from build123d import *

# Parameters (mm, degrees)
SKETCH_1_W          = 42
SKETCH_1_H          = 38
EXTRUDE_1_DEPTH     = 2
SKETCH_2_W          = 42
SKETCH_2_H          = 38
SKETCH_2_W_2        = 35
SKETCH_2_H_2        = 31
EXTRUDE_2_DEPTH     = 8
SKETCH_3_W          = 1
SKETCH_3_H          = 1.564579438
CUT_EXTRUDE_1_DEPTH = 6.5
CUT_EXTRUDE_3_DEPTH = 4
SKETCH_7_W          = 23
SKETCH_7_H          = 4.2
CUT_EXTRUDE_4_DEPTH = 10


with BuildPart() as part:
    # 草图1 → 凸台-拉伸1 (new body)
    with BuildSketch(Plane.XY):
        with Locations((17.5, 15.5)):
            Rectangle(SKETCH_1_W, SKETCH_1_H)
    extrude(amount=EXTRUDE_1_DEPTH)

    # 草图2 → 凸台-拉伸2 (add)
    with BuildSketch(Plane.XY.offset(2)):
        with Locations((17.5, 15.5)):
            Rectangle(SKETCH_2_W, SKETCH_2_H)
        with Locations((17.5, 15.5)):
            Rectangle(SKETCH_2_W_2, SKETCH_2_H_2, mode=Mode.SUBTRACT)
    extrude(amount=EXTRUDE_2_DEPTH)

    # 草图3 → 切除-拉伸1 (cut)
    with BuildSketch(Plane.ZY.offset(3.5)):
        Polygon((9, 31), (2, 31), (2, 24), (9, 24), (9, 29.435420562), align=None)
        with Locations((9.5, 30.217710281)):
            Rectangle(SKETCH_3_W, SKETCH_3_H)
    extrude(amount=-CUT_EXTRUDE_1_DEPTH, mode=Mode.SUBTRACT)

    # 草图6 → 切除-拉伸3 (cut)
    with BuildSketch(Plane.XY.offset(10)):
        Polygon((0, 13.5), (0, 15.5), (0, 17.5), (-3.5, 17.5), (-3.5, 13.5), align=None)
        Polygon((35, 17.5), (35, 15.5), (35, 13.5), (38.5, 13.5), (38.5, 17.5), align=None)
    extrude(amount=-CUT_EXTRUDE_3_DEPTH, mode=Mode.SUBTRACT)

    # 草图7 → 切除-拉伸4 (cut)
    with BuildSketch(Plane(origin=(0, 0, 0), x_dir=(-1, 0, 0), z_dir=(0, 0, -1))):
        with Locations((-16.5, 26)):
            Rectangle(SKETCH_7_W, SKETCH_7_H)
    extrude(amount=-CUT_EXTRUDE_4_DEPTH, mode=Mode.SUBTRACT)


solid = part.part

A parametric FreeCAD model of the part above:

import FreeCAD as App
import Part
import Sketcher

V = App.Vector

doc = App.newDocument("Part")
body = doc.addObject("PartDesign::Body", "Body")

# Sketch on XY plane
sketch1 = body.newObject("Sketcher::SketchObject", "Sketch")
sketch1.AttachmentSupport = (doc.getObject("XY_Plane"), [""])
sketch1.MapMode = "FlatFace"
sketch1.addGeometry([
    Part.LineSegment(V(-3.5, 34.5, 0), V(-3.5, -3.5, 0)),
    Part.LineSegment(V(-3.5, -3.5, 0), V(38.5, -3.5, 0)),
    Part.LineSegment(V(38.5, -3.5, 0), V(38.5, 34.5, 0)),
    Part.LineSegment(V(38.5, 34.5, 0), V(-3.5, 34.5, 0)),
], False)
sketch1.addConstraint([
    Sketcher.Constraint("Coincident", 0, 2, 1, 1),
    Sketcher.Constraint("Coincident", 1, 2, 2, 1),
    Sketcher.Constraint("Coincident", 2, 2, 3, 1),
    Sketcher.Constraint("Coincident", 3, 2, 0, 1),
    Sketcher.Constraint("Vertical", 0),
    Sketcher.Constraint("Horizontal", 1),
    Sketcher.Constraint("Vertical", 2),
    Sketcher.Constraint("Horizontal", 3),
    Sketcher.Constraint("DistanceX", 1, 1, 1, 2, 42.0),
    Sketcher.Constraint("DistanceY", 0, 2, 0, 1, 38.0),
    Sketcher.Constraint("DistanceX", 0, 2, -1, 1, 3.5),
    Sketcher.Constraint("DistanceY", 0, 2, -1, 1, 3.5),
])
pad1 = body.newObject("PartDesign::Pad", "Pad")
pad1.Profile = sketch1
pad1.Length = 2

# Sketch on XY plane
sketch2 = body.newObject("Sketcher::SketchObject", "Sketch001")
sketch2.AttachmentSupport = (doc.getObject("XY_Plane"), [""])
sketch2.MapMode = "FlatFace"
sketch2.AttachmentOffset = App.Placement(V(0, 0, 2), App.Rotation())
sketch2.addGeometry([
    Part.LineSegment(V(-3.5, 34.5, 0), V(-3.5, -3.5, 0)),  # 0
    Part.LineSegment(V(-3.5, -3.5, 0), V(38.5, -3.5, 0)),  # 1
    Part.LineSegment(V(38.5, -3.5, 0), V(38.5, 34.5, 0)),  # 2
    Part.LineSegment(V(38.5, 34.5, 0), V(-3.5, 34.5, 0)),  # 3
    Part.LineSegment(V(35, 0, 0), V(0, 0, 0)),  # 4
    Part.LineSegment(V(0, 0, 0), V(0, 31, 0)),  # 5
    Part.LineSegment(V(0, 31, 0), V(35, 31, 0)),  # 6
    Part.LineSegment(V(35, 31, 0), V(35, 0, 0)),  # 7
], False)
sketch2.addConstraint([
    Sketcher.Constraint("Coincident", 0, 2, 1, 1),
    Sketcher.Constraint("Coincident", 1, 2, 2, 1),
    Sketcher.Constraint("Coincident", 2, 2, 3, 1),
    Sketcher.Constraint("Coincident", 3, 2, 0, 1),
    Sketcher.Constraint("Coincident", 4, 2, 5, 1),
    Sketcher.Constraint("Coincident", 5, 2, 6, 1),
    Sketcher.Constraint("Coincident", 6, 2, 7, 1),
    Sketcher.Constraint("Coincident", 7, 2, 4, 1),
    Sketcher.Constraint("Vertical", 0),
    Sketcher.Constraint("Horizontal", 1),
    Sketcher.Constraint("Vertical", 2),
    Sketcher.Constraint("Horizontal", 3),
    Sketcher.Constraint("Horizontal", 4),
    Sketcher.Constraint("Vertical", 5),
    Sketcher.Constraint("Horizontal", 6),
    Sketcher.Constraint("Vertical", 7),
    Sketcher.Constraint("Coincident", 4, 2, -1, 1),
    Sketcher.Constraint("DistanceX", 1, 1, 1, 2, 42.0),
    Sketcher.Constraint("DistanceX", 4, 2, 4, 1, 35.0),
    Sketcher.Constraint("DistanceY", 0, 2, 0, 1, 38.0),
    Sketcher.Constraint("DistanceY", 5, 1, 5, 2, 31.0),
    Sketcher.Constraint("DistanceX", 0, 2, -1, 1, 3.5),
    Sketcher.Constraint("DistanceY", 0, 2, -1, 1, 3.5),
])
pad2 = body.newObject("PartDesign::Pad", "Pad001")
pad2.Profile = sketch2
pad2.Length = 8

# Sketch on YZ plane
sketch3 = body.newObject("Sketcher::SketchObject", "Sketch002")
sketch3.AttachmentSupport = (doc.getObject("YZ_Plane"), [""])
sketch3.MapMode = "FlatFace"
sketch3.AttachmentOffset = App.Placement(V(0, 0, -3.5), App.Rotation())
sketch3.addGeometry([
    Part.LineSegment(V(31, 2, 0), V(24, 2, 0)),  # 0
    Part.LineSegment(V(24, 2, 0), V(24, 9, 0)),  # 1
    Part.LineSegment(V(24, 9, 0), V(29.435421, 9, 0)),  # 2
    Part.LineSegment(V(29.435421, 9, 0), V(29.435421, 10, 0)),  # 3
    Part.LineSegment(V(29.435421, 10, 0), V(31, 10, 0)),  # 4
    Part.LineSegment(V(31, 10, 0), V(31, 2, 0)),  # 5
], False)
sketch3.addConstraint([
    Sketcher.Constraint("Coincident", 0, 2, 1, 1),
    Sketcher.Constraint("Coincident", 1, 2, 2, 1),
    Sketcher.Constraint("Coincident", 2, 2, 3, 1),
    Sketcher.Constraint("Coincident", 3, 2, 4, 1),
    Sketcher.Constraint("Coincident", 4, 2, 5, 1),
    Sketcher.Constraint("Coincident", 5, 2, 0, 1),
    Sketcher.Constraint("Horizontal", 0),
    Sketcher.Constraint("Vertical", 1),
    Sketcher.Constraint("Horizontal", 2),
    Sketcher.Constraint("Vertical", 3),
    Sketcher.Constraint("Horizontal", 4),
    Sketcher.Constraint("Vertical", 5),
    Sketcher.Constraint("Equal", 0, 1),
    Sketcher.Constraint("DistanceX", 0, 2, 0, 1, 7.0),
    Sketcher.Constraint("DistanceY", 3, 1, 3, 2, 1.0),
    Sketcher.Constraint("DistanceX", -1, 1, 0, 2, 24.0),
    Sketcher.Constraint("DistanceY", -1, 1, 0, 2, 2.0),
    Sketcher.Constraint("DistanceX", 2, 1, 2, 2, 5.435421),
])
pocket1 = body.newObject("PartDesign::Pocket", "Pocket")
pocket1.Profile = sketch3
pocket1.Length = 6.5
pocket1.Reversed = True

# Sketch on XY plane
sketch4 = body.newObject("Sketcher::SketchObject", "Sketch003")
sketch4.AttachmentSupport = (doc.getObject("XY_Plane"), [""])
sketch4.MapMode = "FlatFace"
sketch4.AttachmentOffset = App.Placement(V(0, 0, 10), App.Rotation())
sketch4.addGeometry([
    Part.LineSegment(V(0, 13.5, 0), V(0, 17.5, 0)),  # 0
    Part.LineSegment(V(0, 17.5, 0), V(-3.5, 17.5, 0)),  # 1
    Part.LineSegment(V(-3.5, 17.5, 0), V(-3.5, 13.5, 0)),  # 2
    Part.LineSegment(V(-3.5, 13.5, 0), V(0, 13.5, 0)),  # 3
    Part.LineSegment(V(35, 17.5, 0), V(35, 13.5, 0)),  # 4
    Part.LineSegment(V(35, 13.5, 0), V(38.5, 13.5, 0)),  # 5
    Part.LineSegment(V(38.5, 13.5, 0), V(38.5, 17.5, 0)),  # 6
    Part.LineSegment(V(38.5, 17.5, 0), V(35, 17.5, 0)),  # 7
], False)
sketch4.addConstraint([
    Sketcher.Constraint("Coincident", 0, 2, 1, 1),
    Sketcher.Constraint("Coincident", 1, 2, 2, 1),
    Sketcher.Constraint("Coincident", 2, 2, 3, 1),
    Sketcher.Constraint("Coincident", 3, 2, 0, 1),
    Sketcher.Constraint("Coincident", 4, 2, 5, 1),
    Sketcher.Constraint("Coincident", 5, 2, 6, 1),
    Sketcher.Constraint("Coincident", 6, 2, 7, 1),
    Sketcher.Constraint("Coincident", 7, 2, 4, 1),
    Sketcher.Constraint("Vertical", 0),
    Sketcher.Constraint("Horizontal", 1),
    Sketcher.Constraint("Vertical", 2),
    Sketcher.Constraint("Horizontal", 3),
    Sketcher.Constraint("Vertical", 4),
    Sketcher.Constraint("Horizontal", 5),
    Sketcher.Constraint("Vertical", 6),
    Sketcher.Constraint("Horizontal", 7),
    Sketcher.Constraint("PointOnObject", 0, 2, -2),
    Sketcher.Constraint("Horizontal", 3, 2, 4, 2),
    Sketcher.Constraint("Horizontal", 1, 2, 6, 2),
    Sketcher.Constraint("Equal", 3, 5),
    Sketcher.Constraint("DistanceY", 0, 1, 0, 2, 4.0),
    Sketcher.Constraint("DistanceX", 1, 2, 1, 1, 3.5),
    Sketcher.Constraint("DistanceX", -1, 1, 4, 2, 35.0),
    Sketcher.Constraint("DistanceY", -1, 1, 0, 2, 17.5),
])
pocket2 = body.newObject("PartDesign::Pocket", "Pocket001")
pocket2.Profile = sketch4
pocket2.Length = 4

# Sketch on XY plane
sketch5 = body.newObject("Sketcher::SketchObject", "Sketch004")
sketch5.AttachmentSupport = (doc.getObject("XY_Plane"), [""])
sketch5.MapMode = "FlatFace"
sketch5.addGeometry([
    Part.LineSegment(V(28, 28.1, 0), V(28, 23.9, 0)),
    Part.LineSegment(V(28, 23.9, 0), V(5, 23.9, 0)),
    Part.LineSegment(V(5, 23.9, 0), V(5, 28.1, 0)),
    Part.LineSegment(V(5, 28.1, 0), V(28, 28.1, 0)),
], False)
sketch5.addConstraint([
    Sketcher.Constraint("Coincident", 0, 2, 1, 1),
    Sketcher.Constraint("Coincident", 1, 2, 2, 1),
    Sketcher.Constraint("Coincident", 2, 2, 3, 1),
    Sketcher.Constraint("Coincident", 3, 2, 0, 1),
    Sketcher.Constraint("Vertical", 0),
    Sketcher.Constraint("Horizontal", 1),
    Sketcher.Constraint("Vertical", 2),
    Sketcher.Constraint("Horizontal", 3),
    Sketcher.Constraint("DistanceX", 1, 2, 1, 1, 23.0),
    Sketcher.Constraint("DistanceY", 0, 2, 0, 1, 4.2),
    Sketcher.Constraint("DistanceX", -1, 1, 0, 2, 28.0),
    Sketcher.Constraint("DistanceY", -1, 1, 0, 2, 23.9),
])
pocket3 = body.newObject("PartDesign::Pocket", "Pocket002")
pocket3.Profile = sketch5
pocket3.Length = 10
pocket3.Reversed = True

doc.recompute()
